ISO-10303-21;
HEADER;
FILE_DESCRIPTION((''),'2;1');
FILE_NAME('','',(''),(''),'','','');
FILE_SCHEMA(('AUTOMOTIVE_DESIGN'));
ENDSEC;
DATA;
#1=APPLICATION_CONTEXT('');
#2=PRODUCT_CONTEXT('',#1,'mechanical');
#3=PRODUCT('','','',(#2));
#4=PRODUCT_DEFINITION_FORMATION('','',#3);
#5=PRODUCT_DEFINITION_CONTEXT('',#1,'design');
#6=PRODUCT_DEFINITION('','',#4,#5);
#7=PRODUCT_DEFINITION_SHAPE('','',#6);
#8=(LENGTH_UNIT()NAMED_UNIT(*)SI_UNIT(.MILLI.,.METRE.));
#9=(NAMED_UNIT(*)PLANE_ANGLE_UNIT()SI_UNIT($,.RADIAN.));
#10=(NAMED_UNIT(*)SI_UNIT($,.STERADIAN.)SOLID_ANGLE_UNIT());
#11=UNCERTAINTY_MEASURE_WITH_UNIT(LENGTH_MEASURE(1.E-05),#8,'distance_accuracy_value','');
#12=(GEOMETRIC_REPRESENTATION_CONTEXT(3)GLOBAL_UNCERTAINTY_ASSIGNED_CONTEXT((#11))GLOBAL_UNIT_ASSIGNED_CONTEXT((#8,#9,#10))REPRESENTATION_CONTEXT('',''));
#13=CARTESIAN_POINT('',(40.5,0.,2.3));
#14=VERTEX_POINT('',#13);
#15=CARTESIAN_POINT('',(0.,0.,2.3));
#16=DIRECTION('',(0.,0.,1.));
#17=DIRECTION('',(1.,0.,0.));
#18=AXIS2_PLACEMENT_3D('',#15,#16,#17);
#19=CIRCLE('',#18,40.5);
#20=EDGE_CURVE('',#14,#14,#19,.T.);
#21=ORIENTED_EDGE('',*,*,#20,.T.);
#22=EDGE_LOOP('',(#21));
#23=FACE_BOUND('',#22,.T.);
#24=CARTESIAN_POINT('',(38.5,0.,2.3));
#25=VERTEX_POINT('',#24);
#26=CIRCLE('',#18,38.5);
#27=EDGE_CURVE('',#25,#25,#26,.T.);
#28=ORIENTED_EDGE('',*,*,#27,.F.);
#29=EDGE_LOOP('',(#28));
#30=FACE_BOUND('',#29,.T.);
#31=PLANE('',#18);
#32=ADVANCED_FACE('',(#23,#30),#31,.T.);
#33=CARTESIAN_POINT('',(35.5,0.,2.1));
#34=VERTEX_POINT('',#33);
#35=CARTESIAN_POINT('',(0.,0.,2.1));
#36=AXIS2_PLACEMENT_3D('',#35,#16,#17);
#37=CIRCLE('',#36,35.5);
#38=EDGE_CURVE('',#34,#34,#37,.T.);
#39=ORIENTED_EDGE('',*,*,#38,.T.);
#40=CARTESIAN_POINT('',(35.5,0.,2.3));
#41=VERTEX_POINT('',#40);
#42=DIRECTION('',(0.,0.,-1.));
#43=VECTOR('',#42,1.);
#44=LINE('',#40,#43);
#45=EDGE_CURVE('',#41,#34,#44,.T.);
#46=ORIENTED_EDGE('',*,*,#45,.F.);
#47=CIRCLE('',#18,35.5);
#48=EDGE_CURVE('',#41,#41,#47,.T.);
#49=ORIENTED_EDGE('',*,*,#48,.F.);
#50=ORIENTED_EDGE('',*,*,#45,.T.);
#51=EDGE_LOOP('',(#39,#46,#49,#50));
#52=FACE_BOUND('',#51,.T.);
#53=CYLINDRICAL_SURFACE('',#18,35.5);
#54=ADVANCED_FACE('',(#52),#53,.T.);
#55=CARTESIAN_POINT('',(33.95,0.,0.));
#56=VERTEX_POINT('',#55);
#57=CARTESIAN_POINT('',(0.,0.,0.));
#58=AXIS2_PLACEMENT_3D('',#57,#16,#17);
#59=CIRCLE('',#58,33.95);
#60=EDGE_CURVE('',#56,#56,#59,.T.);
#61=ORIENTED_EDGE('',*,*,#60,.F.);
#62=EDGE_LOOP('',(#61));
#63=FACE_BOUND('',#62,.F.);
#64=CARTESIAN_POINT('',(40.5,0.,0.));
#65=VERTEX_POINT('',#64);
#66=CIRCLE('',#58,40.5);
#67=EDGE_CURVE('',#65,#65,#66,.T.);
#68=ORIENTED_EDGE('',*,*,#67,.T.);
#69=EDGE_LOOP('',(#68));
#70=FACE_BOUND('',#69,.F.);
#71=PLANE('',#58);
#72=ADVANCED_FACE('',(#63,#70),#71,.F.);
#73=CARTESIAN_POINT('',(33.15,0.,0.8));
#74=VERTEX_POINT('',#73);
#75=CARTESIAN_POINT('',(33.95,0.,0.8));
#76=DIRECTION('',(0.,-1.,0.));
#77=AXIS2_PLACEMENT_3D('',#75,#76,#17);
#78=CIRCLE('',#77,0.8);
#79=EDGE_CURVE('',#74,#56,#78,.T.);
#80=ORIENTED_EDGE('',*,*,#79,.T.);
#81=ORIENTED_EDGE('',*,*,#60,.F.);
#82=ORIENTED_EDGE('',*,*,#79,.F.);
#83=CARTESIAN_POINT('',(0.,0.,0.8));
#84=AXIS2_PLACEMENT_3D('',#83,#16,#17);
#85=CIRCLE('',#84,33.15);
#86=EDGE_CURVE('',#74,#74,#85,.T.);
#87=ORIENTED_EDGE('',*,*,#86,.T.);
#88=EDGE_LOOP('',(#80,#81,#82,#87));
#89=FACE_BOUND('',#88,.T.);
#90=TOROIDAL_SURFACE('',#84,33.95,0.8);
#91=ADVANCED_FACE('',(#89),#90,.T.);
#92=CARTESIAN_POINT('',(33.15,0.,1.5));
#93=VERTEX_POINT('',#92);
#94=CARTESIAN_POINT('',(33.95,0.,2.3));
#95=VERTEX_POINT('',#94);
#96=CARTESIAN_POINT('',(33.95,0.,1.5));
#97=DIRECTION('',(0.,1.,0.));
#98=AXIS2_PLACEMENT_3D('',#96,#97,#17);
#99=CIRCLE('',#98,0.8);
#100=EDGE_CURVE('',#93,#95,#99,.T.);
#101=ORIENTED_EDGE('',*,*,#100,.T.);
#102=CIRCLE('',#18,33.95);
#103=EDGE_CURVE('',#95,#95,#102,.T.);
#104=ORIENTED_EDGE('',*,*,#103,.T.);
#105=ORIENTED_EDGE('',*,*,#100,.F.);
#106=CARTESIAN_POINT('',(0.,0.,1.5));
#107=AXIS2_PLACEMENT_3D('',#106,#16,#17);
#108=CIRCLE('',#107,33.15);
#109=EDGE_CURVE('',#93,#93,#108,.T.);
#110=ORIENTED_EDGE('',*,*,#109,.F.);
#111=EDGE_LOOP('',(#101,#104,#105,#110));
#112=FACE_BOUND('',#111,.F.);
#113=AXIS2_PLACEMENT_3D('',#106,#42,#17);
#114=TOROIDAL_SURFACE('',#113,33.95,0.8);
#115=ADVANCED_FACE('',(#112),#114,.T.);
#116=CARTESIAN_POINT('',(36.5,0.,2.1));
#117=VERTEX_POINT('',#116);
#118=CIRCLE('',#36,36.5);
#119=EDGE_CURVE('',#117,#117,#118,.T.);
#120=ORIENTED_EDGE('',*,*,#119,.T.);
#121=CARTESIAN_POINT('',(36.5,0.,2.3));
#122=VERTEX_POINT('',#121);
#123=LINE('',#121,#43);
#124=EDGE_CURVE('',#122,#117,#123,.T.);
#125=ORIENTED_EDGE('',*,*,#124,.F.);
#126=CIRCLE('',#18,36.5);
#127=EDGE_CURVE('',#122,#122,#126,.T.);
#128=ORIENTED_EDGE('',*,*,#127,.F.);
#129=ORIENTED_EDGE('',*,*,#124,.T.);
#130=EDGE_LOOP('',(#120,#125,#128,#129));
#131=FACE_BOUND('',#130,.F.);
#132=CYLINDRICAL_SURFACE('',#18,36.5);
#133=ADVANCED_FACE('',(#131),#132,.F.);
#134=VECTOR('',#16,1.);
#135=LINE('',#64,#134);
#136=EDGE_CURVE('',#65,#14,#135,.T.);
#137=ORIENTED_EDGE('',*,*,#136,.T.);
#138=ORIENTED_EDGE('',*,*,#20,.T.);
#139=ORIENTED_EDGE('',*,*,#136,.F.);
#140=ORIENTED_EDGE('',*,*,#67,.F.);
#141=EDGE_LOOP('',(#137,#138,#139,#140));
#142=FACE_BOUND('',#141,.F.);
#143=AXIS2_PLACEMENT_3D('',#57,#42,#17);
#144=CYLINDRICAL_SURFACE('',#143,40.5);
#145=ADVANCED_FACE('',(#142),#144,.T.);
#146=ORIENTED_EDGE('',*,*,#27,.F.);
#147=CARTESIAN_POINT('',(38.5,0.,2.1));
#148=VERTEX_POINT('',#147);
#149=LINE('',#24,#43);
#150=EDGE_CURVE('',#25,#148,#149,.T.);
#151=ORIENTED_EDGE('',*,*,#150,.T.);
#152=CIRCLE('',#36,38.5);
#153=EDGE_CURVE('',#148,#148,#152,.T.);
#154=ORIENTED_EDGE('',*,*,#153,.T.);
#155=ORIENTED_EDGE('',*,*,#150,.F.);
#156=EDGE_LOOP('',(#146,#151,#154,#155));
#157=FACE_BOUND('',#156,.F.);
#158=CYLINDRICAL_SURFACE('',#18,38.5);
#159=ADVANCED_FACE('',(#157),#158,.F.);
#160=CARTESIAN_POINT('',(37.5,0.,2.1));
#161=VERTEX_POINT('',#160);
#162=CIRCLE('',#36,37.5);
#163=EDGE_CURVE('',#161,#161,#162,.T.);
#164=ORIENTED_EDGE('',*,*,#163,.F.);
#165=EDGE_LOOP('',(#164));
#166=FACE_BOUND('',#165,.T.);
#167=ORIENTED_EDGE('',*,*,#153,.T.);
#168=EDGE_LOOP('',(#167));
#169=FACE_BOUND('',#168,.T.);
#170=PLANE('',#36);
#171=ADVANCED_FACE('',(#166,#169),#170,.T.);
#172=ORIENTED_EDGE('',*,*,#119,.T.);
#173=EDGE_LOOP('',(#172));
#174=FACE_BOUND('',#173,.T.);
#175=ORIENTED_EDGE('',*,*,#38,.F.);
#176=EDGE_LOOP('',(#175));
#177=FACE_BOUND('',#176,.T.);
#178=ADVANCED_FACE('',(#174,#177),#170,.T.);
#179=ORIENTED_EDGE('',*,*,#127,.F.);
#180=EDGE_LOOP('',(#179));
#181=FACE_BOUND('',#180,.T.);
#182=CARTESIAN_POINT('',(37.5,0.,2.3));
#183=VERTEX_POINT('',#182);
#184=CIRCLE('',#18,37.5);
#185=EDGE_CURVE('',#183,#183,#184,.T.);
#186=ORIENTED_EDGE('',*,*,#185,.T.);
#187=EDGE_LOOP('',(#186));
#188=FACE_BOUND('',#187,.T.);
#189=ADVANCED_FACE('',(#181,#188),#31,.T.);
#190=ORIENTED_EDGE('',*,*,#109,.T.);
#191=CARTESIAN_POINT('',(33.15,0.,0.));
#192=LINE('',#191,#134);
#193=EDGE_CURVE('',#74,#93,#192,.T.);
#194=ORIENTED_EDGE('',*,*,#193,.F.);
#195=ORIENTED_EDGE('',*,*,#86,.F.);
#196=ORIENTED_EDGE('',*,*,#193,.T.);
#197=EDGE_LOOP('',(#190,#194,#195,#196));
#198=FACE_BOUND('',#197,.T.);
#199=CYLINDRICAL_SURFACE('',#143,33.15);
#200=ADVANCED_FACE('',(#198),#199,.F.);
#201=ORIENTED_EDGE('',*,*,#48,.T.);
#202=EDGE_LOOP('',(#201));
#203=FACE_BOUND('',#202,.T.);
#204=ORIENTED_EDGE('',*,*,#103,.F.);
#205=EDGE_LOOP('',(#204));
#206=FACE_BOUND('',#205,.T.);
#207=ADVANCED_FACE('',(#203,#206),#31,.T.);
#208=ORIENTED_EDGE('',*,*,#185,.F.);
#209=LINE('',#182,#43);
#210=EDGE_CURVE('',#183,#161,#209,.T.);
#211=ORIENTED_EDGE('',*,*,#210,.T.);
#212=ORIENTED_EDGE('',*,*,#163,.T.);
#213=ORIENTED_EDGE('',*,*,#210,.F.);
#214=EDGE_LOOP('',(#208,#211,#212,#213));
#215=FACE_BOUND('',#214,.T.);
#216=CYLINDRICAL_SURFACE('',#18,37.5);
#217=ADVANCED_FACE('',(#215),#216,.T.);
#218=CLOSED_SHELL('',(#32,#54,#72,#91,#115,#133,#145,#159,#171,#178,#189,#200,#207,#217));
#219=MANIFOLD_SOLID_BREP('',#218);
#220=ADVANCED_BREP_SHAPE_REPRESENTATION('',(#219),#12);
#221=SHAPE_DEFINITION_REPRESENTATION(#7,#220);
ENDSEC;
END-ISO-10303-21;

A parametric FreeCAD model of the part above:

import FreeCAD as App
import Part
import Sketcher


def edges_at(feature, points):
    """Names of the edges that pass closest to the given points."""
    edges = feature.Shape.Edges
    near = lambda p: min(range(len(edges)), key=lambda i: edges[i].distToShape(Part.Vertex(*p))[0])
    return sorted({f"Edge{near(p) + 1}" for p in points})

doc = App.newDocument("Part")
body = doc.addObject("PartDesign::Body", "Body")

# Sketch on XY plane
sketch1 = body.newObject("Sketcher::SketchObject", "Sketch")
sketch1.AttachmentSupport = (doc.getObject("XY_Plane"), [""])
sketch1.MapMode = "FlatFace"
sketch1.addGeometry([
    Part.Circle(App.Vector(0, 0, 0), App.Vector(0, 0, 1), 40),
    Part.Circle(App.Vector(0, 0, 0), App.Vector(0, 0, 1), 33),
], False)
sketch1.addConstraint([
    Sketcher.Constraint("Coincident", 0, 3, -1, 1),
    Sketcher.Constraint("Coincident", 1, 3, -1, 1),
    Sketcher.Constraint("Diameter", 0, 81.0),
    Sketcher.Constraint("Diameter", 1, 66.3),
])
pad1 = body.newObject("PartDesign::Pad", "Pad")
pad1.Profile = sketch1
pad1.Length = 2.3
doc.recompute()

fillet = body.newObject("PartDesign::Fillet", "Fillet")
fillet.Base = (pad1, edges_at(pad1, [(-33.15, 0, 2.3), (-33.15, 0, 0)]))
fillet.Radius = 0.8

# Sketch on XY plane
sketch2 = body.newObject("Sketcher::SketchObject", "Sketch001")
sketch2.AttachmentSupport = (doc.getObject("XY_Plane"), [""])
sketch2.MapMode = "FlatFace"
sketch2.AttachmentOffset = App.Placement(App.Vector(0, 0, 2.3), App.Rotation())
sketch2.addGeometry([
    Part.Circle(App.Vector(0, 0, 0), App.Vector(0, 0, 1), 38),
    Part.Circle(App.Vector(0, 0, 0), App.Vector(0, 0, 1), 38),
    Part.Circle(App.Vector(0, 0, 0), App.Vector(0, 0, 1), 36),
    Part.Circle(App.Vector(0, 0, 0), App.Vector(0, 0, 1), 36),
], False)
sketch2.addConstraint([
    Sketcher.Constraint("Coincident", 0, 3, -1, 1),
    Sketcher.Constraint("Coincident", 1, 3, -1, 1),
    Sketcher.Constraint("Coincident", 2, 3, -1, 1),
    Sketcher.Constraint("Coincident", 3, 3, -1, 1),
    Sketcher.Constraint("Diameter", 0, 77.0),
    Sketcher.Constraint("Diameter", 1, 75.0),
    Sketcher.Constraint("Diameter", 2, 73.0),
    Sketcher.Constraint("Diameter", 3, 71.0),
])
pocket1 = body.newObject("PartDesign::Pocket", "Pocket")
pocket1.Profile = sketch2
pocket1.Length = 0.2

doc.recompute()
